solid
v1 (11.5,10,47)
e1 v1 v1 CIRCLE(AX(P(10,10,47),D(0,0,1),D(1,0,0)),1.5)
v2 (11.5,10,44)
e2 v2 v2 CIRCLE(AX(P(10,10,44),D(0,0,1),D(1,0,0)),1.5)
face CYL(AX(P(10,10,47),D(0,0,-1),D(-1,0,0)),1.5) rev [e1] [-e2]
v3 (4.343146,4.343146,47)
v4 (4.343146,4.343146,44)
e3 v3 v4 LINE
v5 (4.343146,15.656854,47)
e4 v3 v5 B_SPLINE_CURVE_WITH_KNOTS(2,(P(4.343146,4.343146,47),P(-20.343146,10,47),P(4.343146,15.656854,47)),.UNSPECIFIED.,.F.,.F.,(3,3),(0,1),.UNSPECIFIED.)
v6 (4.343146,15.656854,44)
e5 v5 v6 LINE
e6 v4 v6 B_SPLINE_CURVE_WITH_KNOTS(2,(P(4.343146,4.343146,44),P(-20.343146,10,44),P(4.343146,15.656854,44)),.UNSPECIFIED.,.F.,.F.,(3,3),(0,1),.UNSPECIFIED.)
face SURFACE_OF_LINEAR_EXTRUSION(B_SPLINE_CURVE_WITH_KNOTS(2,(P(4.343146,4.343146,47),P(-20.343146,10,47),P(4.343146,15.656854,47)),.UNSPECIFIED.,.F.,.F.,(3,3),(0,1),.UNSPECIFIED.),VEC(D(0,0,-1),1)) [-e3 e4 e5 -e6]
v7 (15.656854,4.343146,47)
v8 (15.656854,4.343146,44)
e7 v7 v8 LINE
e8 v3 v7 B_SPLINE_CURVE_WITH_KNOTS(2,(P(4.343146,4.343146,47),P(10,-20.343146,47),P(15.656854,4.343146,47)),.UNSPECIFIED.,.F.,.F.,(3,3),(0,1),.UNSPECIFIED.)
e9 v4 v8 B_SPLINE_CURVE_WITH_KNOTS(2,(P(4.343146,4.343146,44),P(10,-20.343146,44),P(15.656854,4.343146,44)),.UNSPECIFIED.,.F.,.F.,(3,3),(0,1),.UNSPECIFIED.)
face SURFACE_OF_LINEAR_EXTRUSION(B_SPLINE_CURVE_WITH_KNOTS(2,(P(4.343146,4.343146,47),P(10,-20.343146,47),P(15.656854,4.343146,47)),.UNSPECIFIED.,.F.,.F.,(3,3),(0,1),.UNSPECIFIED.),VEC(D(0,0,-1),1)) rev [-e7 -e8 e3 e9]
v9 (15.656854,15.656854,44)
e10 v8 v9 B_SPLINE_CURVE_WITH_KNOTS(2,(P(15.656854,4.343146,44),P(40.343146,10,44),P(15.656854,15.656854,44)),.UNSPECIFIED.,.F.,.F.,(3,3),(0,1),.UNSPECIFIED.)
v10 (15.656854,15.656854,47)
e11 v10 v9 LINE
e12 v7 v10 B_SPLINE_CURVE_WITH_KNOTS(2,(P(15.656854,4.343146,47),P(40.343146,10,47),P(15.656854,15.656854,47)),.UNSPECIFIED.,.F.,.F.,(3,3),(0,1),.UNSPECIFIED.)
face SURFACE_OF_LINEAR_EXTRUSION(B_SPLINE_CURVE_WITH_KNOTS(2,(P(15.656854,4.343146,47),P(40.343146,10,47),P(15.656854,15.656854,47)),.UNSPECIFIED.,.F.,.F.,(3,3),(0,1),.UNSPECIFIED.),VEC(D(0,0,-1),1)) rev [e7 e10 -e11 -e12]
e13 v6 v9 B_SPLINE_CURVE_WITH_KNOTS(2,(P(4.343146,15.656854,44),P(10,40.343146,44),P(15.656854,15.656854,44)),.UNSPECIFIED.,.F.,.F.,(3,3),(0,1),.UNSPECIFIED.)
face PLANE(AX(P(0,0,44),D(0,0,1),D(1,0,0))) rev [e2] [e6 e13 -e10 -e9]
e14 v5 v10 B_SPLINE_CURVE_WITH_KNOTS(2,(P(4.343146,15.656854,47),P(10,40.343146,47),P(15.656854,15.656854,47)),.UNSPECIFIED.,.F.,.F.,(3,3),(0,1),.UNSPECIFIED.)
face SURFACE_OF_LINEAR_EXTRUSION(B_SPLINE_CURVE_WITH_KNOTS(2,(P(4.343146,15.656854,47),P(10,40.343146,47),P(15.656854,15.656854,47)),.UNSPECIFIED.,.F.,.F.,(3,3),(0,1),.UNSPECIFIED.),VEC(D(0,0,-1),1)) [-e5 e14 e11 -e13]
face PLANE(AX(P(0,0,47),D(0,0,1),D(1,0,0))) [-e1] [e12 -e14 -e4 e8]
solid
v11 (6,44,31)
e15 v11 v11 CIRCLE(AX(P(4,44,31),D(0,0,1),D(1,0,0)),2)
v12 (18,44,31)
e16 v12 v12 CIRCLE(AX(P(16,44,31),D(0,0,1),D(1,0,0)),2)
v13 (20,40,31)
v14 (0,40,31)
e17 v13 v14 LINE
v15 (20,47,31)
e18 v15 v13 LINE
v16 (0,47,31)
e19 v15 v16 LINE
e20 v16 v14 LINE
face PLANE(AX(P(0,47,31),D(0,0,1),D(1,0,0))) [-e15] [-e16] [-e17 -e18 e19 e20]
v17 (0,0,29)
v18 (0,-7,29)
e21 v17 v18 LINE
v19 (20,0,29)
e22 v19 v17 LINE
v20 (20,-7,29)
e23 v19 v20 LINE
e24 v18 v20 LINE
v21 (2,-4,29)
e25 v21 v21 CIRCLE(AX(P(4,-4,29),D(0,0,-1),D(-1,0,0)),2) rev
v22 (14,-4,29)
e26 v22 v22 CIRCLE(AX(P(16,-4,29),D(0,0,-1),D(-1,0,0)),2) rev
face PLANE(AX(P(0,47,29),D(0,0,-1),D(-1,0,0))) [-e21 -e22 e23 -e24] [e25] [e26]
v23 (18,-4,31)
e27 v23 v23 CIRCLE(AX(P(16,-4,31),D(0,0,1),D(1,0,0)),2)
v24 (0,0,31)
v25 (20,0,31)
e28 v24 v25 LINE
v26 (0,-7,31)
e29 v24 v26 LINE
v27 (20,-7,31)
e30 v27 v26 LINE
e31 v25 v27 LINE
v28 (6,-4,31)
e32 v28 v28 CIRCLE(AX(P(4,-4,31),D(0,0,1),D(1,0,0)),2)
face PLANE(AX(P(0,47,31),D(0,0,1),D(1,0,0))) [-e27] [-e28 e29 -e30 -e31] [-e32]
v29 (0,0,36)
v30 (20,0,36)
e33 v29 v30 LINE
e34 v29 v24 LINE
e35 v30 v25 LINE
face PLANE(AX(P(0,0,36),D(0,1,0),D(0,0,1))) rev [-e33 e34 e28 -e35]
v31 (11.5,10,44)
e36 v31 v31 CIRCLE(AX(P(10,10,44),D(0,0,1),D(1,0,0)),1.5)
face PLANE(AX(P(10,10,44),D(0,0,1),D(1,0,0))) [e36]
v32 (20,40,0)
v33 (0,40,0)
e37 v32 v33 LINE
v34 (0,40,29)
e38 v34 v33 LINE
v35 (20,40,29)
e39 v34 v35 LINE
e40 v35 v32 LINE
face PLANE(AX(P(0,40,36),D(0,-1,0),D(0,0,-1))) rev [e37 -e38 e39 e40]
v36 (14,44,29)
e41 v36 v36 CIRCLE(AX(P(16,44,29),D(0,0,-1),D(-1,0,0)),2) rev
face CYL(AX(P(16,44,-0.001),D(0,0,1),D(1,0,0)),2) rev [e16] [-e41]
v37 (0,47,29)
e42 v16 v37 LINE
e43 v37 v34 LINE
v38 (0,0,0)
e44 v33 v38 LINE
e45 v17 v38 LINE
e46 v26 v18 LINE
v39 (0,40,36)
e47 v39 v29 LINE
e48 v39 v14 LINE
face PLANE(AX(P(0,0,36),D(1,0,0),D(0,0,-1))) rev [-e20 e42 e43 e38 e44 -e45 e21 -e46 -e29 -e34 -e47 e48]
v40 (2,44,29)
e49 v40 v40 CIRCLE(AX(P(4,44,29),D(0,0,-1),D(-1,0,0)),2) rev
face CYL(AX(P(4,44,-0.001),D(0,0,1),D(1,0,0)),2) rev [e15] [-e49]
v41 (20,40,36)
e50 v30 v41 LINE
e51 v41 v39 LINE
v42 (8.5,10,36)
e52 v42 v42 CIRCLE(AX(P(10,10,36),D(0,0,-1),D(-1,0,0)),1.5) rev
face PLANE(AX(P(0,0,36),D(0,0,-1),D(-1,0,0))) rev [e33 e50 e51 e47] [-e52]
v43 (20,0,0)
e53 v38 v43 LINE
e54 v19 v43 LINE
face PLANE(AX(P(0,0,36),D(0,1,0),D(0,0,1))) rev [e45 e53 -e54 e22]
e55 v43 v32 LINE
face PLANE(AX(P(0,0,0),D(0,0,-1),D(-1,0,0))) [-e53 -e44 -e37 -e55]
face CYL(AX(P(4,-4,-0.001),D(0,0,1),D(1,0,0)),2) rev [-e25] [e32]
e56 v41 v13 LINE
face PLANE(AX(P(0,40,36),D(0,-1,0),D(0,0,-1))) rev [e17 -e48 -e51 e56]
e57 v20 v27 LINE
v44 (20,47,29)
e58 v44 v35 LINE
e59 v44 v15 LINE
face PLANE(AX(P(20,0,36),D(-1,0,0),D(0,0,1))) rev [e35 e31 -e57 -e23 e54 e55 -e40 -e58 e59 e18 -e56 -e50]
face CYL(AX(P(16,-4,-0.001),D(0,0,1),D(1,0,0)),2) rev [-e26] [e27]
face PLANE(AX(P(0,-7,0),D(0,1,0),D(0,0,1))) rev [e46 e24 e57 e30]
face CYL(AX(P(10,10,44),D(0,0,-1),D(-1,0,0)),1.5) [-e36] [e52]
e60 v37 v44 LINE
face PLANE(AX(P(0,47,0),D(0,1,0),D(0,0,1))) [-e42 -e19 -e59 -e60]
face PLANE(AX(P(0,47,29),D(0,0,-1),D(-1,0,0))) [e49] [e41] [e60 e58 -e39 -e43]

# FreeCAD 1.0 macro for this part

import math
import FreeCAD as App
import Part
import Sketcher
from FreeCAD import Vector


def add_polygon(sketch, points):
    """Adds a closed chain of lines whose ends are joined by coincident constraints."""
    first, n = sketch.GeometryCount, len(points)
    for a, b in zip(points, points[1:] + points[:1]):
        sketch.addGeometry(Part.LineSegment(App.Vector(*a, 0), App.Vector(*b, 0)), False)
    for i in range(n):
        sketch.addConstraint(Sketcher.Constraint("Coincident", first + i, 2, first + (i + 1) % n, 1))

doc = App.newDocument("Part")
body = doc.addObject("PartDesign::Body", "Body")

sketch1 = doc.addObject("Sketcher::SketchObject", "Sketch")
body.addObject(sketch1)
sketch1.AttachmentSupport = (doc.XY_Plane, [""])
sketch1.MapMode = "FlatFace"
add_polygon(sketch1, [(0, 40), (0, 0), (20, 0), (20, 40)])
sketch1.addConstraint(Sketcher.Constraint("Vertical", 0))
sketch1.addConstraint(Sketcher.Constraint("Horizontal", 1))
sketch1.addConstraint(Sketcher.Constraint("Vertical", 2))
sketch1.addConstraint(Sketcher.Constraint("Horizontal", 3))
sketch1.addConstraint(Sketcher.Constraint("Coincident", 0, 2, -1, 1))
sketch1.addConstraint(Sketcher.Constraint("DistanceX", 1, 1, 1, 2, 20.0))
sketch1.addConstraint(Sketcher.Constraint("DistanceY", 0, 2, 0, 1, 40.0))
pad1 = doc.addObject("PartDesign::Pad", "Pad")
body.addObject(pad1)
pad1.Profile = sketch1
pad1.Length = 36

sketch2 = doc.addObject("Sketcher::SketchObject", "Sketch001")
body.addObject(sketch2)
sketch2.AttachmentSupport = (doc.XZ_Plane, [""])
sketch2.MapMode = "FlatFace"
add_polygon(sketch2, [(0, 31), (0, 29), (20, 29), (20, 31)])
sketch2.addConstraint(Sketcher.Constraint("Vertical", 0))
sketch2.addConstraint(Sketcher.Constraint("Horizontal", 1))
sketch2.addConstraint(Sketcher.Constraint("Vertical", 2))
sketch2.addConstraint(Sketcher.Constraint("Horizontal", 3))
sketch2.addConstraint(Sketcher.Constraint("PointOnObject", 0, 2, -2))
sketch2.addConstraint(Sketcher.Constraint("DistanceX", 1, 1, 1, 2, 20.0))
sketch2.addConstraint(Sketcher.Constraint("DistanceY", 0, 2, 0, 1, 2.0))
sketch2.addConstraint(Sketcher.Constraint("DistanceY", -1, 1, 0, 2, 29.0))
pad2 = doc.addObject("PartDesign::Pad", "Pad001")
body.addObject(pad2)
pad2.Profile = sketch2
pad2.Type = "TwoLengths"
pad2.Length = 7
pad2.Length2 = 47

sketch3 = doc.addObject("Sketcher::SketchObject", "Sketch002")
body.addObject(sketch3)
sketch3.AttachmentSupport = (doc.XY_Plane, [""])
sketch3.MapMode = "FlatFace"
sketch3.AttachmentOffset = App.Placement(Vector(0, 0, 31), App.Rotation())
sketch3.addGeometry(Part.Circle(Vector(4, -4, 0), Vector(0, 0, 1), 2), False)
sketch3.addConstraint(Sketcher.Constraint("Diameter", 0, 4.0))
sketch3.addConstraint(Sketcher.Constraint("DistanceX", -1, 1, 0, 3, 4.0))
sketch3.addConstraint(Sketcher.Constraint("DistanceY", 0, 3, -1, 1, 4.0))
pocket1 = doc.addObject("PartDesign::Pocket", "Pocket")
body.addObject(pocket1)
pocket1.Profile = sketch3
pocket1.Type = "UpToFirst"

sketch4 = doc.addObject("Sketcher::SketchObject", "Sketch003")
body.addObject(sketch4)
sketch4.AttachmentSupport = (doc.XY_Plane, [""])
sketch4.MapMode = "FlatFace"
sketch4.AttachmentOffset = App.Placement(Vector(0, 0, 31), App.Rotation())
sketch4.addGeometry(Part.Circle(Vector(16, -4, 0), Vector(0, 0, 1), 2), False)
sketch4.addConstraint(Sketcher.Constraint("Diameter", 0, 4.0))
sketch4.addConstraint(Sketcher.Constraint("DistanceX", -1, 1, 0, 3, 16.0))
sketch4.addConstraint(Sketcher.Constraint("DistanceY", 0, 3, -1, 1, 4.0))
pocket2 = doc.addObject("PartDesign::Pocket", "Pocket001")
body.addObject(pocket2)
pocket2.Profile = sketch4
pocket2.Type = "UpToFirst"

sketch5 = doc.addObject("Sketcher::SketchObject", "Sketch004")
body.addObject(sketch5)
sketch5.AttachmentSupport = (doc.XY_Plane, [""])
sketch5.MapMode = "FlatFace"
sketch5.AttachmentOffset = App.Placement(Vector(0, 0, 31), App.Rotation())
sketch5.addGeometry(Part.Circle(Vector(4, 44, 0), Vector(0, 0, 1), 2), False)
sketch5.addConstraint(Sketcher.Constraint("Diameter", 0, 4.0))
sketch5.addConstraint(Sketcher.Constraint("DistanceX", -1, 1, 0, 3, 4.0))
sketch5.addConstraint(Sketcher.Constraint("DistanceY", -1, 1, 0, 3, 44.0))
pocket3 = doc.addObject("PartDesign::Pocket", "Pocket002")
body.addObject(pocket3)
pocket3.Profile = sketch5
pocket3.Type = "UpToFirst"

sketch6 = doc.addObject("Sketcher::SketchObject", "Sketch005")
body.addObject(sketch6)
sketch6.AttachmentSupport = (doc.XY_Plane, [""])
sketch6.MapMode = "FlatFace"
sketch6.AttachmentOffset = App.Placement(Vector(0, 0, 31), App.Rotation())
sketch6.addGeometry(Part.Circle(Vector(16, 44, 0), Vector(0, 0, 1), 2), False)
sketch6.addConstraint(Sketcher.Constraint("Diameter", 0, 4.0))
sketch6.addConstraint(Sketcher.Constraint("DistanceX", -1, 1, 0, 3, 16.0))
sketch6.addConstraint(Sketcher.Constraint("DistanceY", -1, 1, 0, 3, 44.0))
pocket4 = doc.addObject("PartDesign::Pocket", "Pocket003")
body.addObject(pocket4)
pocket4.Profile = sketch6
pocket4.Type = "UpToFirst"

sketch7 = doc.addObject("Sketcher::SketchObject", "Sketch006")
body.addObject(sketch7)
sketch7.AttachmentSupport = (doc.XY_Plane, [""])
sketch7.MapMode = "FlatFace"
sketch7.AttachmentOffset = App.Placement(Vector(0, 0, 36), App.Rotation())
sketch7.addGeometry(Part.Circle(Vector(10, 10, 0), Vector(0, 0, 1), 1.5), False)
sketch7.addConstraint(Sketcher.Constraint("Diameter", 0, 3.0))
sketch7.addConstraint(Sketcher.Constraint("DistanceX", -1, 1, 0, 3, 10.0))
sketch7.addConstraint(Sketcher.Constraint("DistanceY", -1, 1, 0, 3, 10.0))
pad3 = doc.addObject("PartDesign::Pad", "Pad002")
body.addObject(pad3)
pad3.Profile = sketch7
pad3.Length = 8
body2 = doc.addObject("PartDesign::Body", "Body001")

sketch8 = doc.addObject("Sketcher::SketchObject", "Sketch007")
body2.addObject(sketch8)
sketch8.AttachmentSupport = (doc.getObject("XY_Plane001"), [""])
sketch8.MapMode = "FlatFace"
sketch8.AttachmentOffset = App.Placement(Vector(0, 0, 44), App.Rotation())
sketch8.addGeometry(Part.BSplineCurve([Vector(4.343146, 4.343146, 0), Vector(10, -20.343146, 0), Vector(15.656854, 4.343146, 0)], [3, 3], [0, 1], False, 2, [1, 1, 1], False), False)
sketch8.addGeometry(Part.BSplineCurve([Vector(15.656854, 4.343146, 0), Vector(40.343146, 10, 0), Vector(15.656854, 15.656854, 0)], [3, 3], [0, 1], False, 2, [1, 1, 1], False), False)
sketch8.addGeometry(Part.BSplineCurve([Vector(15.656854, 15.656854, 0), Vector(10, 40.343146, 0), Vector(4.343146, 15.656854, 0)], [3, 3], [0.5, 1.5], False, 2, [1, 1, 1], False), False)
sketch8.addGeometry(Part.BSplineCurve([Vector(4.343146, 15.656854, 0), Vector(-20.343146, 10, 0), Vector(4.343146, 4.343146, 0)], [3, 3], [0.5, 1.5], False, 2, [1, 1, 1], False), False)
sketch8.addGeometry(Part.ArcOfCircle(Part.Circle(Vector(10, 10, 0), Vector(0, 0, 1), 1.5), math.radians(-45), math.radians(0)), False)
sketch8.addGeometry(Part.ArcOfCircle(Part.Circle(Vector(10, 10, 0), Vector(0, 0, 1), 1.5), math.radians(-90), math.radians(-45)), False)
sketch8.addGeometry(Part.ArcOfCircle(Part.Circle(Vector(10, 10, 0), Vector(0, 0, 1), 1.5), math.radians(-135), math.radians(-90)), False)
sketch8.addGeometry(Part.ArcOfCircle(Part.Circle(Vector(10, 10, 0), Vector(0, 0, 1), 1.5), math.radians(180), math.radians(225)), False)
sketch8.addGeometry(Part.ArcOfCircle(Part.Circle(Vector(10, 10, 0), Vector(0, 0, 1), 1.5), math.radians(135), math.radians(180)), False)
sketch8.addGeometry(Part.ArcOfCircle(Part.Circle(Vector(10, 10, 0), Vector(0, 0, 1), 1.5), math.radians(90), math.radians(135)), False)
sketch8.addGeometry(Part.ArcOfCircle(Part.Circle(Vector(10, 10, 0), Vector(0, 0, 1), 1.5), math.radians(45), math.radians(90)), False)
sketch8.addGeometry(Part.ArcOfCircle(Part.Circle(Vector(10, 10, 0), Vector(0, 0, 1), 1.5), math.radians(0), math.radians(45)), False)
sketch8.addConstraint(Sketcher.Constraint("Block", 0))
sketch8.addConstraint(Sketcher.Constraint("Block", 1))
sketch8.addConstraint(Sketcher.Constraint("Block", 2))
sketch8.addConstraint(Sketcher.Constraint("Block", 3))
sketch8.addConstraint(Sketcher.Constraint("Tangent", 4, 1, 5, 2))
sketch8.addConstraint(Sketcher.Constraint("Tangent", 5, 1, 6, 2))
sketch8.addConstraint(Sketcher.Constraint("Tangent", 6, 1, 7, 2))
sketch8.addConstraint(Sketcher.Constraint("Tangent", 7, 1, 8, 2))
sketch8.addConstraint(Sketcher.Constraint("Tangent", 8, 1, 9, 2))
sketch8.addConstraint(Sketcher.Constraint("Tangent", 9, 1, 10, 2))
sketch8.addConstraint(Sketcher.Constraint("Tangent", 10, 1, 11, 2))
sketch8.addConstraint(Sketcher.Constraint("Tangent", 11, 1, 4, 2))
sketch8.addConstraint(Sketcher.Constraint("Coincident", 6, 3, 4, 3))
sketch8.addConstraint(Sketcher.Constraint("Coincident", 8, 3, 4, 3))
sketch8.addConstraint(Sketcher.Constraint("Equal", 8, 9))
sketch8.addConstraint(Sketcher.Constraint("Horizontal", 4, 1, 6, 1))
sketch8.addConstraint(Sketcher.Constraint("Horizontal", 11, 3, 7, 1))
sketch8.addConstraint(Sketcher.Constraint("Horizontal", 8, 1, 10, 1))
sketch8.addConstraint(Sketcher.Constraint("Horizontal", 7, 1, 11, 1))
sketch8.addConstraint(Sketcher.Constraint("Vertical", 11, 3, 5, 1))
sketch8.addConstraint(Sketcher.Constraint("Vertical", 6, 1, 8, 1))
sketch8.addConstraint(Sketcher.Constraint("Vertical", 5, 1, 9, 1))
sketch8.addConstraint(Sketcher.Constraint("Radius", 4, 1.5))
sketch8.addConstraint(Sketcher.Constraint("DistanceX", -1, 1, 4, 3, 10.0))
sketch8.addConstraint(Sketcher.Constraint("DistanceY", -1, 1, 4, 3, 10.0))
sketch8.addConstraint(Sketcher.Constraint("DistanceX", -1, 1, 4, 1, 11.06066))
pad4 = doc.addObject("PartDesign::Pad", "Pad003")
body2.addObject(pad4)
pad4.Profile = sketch8
pad4.Length = 3

doc.recompute()
